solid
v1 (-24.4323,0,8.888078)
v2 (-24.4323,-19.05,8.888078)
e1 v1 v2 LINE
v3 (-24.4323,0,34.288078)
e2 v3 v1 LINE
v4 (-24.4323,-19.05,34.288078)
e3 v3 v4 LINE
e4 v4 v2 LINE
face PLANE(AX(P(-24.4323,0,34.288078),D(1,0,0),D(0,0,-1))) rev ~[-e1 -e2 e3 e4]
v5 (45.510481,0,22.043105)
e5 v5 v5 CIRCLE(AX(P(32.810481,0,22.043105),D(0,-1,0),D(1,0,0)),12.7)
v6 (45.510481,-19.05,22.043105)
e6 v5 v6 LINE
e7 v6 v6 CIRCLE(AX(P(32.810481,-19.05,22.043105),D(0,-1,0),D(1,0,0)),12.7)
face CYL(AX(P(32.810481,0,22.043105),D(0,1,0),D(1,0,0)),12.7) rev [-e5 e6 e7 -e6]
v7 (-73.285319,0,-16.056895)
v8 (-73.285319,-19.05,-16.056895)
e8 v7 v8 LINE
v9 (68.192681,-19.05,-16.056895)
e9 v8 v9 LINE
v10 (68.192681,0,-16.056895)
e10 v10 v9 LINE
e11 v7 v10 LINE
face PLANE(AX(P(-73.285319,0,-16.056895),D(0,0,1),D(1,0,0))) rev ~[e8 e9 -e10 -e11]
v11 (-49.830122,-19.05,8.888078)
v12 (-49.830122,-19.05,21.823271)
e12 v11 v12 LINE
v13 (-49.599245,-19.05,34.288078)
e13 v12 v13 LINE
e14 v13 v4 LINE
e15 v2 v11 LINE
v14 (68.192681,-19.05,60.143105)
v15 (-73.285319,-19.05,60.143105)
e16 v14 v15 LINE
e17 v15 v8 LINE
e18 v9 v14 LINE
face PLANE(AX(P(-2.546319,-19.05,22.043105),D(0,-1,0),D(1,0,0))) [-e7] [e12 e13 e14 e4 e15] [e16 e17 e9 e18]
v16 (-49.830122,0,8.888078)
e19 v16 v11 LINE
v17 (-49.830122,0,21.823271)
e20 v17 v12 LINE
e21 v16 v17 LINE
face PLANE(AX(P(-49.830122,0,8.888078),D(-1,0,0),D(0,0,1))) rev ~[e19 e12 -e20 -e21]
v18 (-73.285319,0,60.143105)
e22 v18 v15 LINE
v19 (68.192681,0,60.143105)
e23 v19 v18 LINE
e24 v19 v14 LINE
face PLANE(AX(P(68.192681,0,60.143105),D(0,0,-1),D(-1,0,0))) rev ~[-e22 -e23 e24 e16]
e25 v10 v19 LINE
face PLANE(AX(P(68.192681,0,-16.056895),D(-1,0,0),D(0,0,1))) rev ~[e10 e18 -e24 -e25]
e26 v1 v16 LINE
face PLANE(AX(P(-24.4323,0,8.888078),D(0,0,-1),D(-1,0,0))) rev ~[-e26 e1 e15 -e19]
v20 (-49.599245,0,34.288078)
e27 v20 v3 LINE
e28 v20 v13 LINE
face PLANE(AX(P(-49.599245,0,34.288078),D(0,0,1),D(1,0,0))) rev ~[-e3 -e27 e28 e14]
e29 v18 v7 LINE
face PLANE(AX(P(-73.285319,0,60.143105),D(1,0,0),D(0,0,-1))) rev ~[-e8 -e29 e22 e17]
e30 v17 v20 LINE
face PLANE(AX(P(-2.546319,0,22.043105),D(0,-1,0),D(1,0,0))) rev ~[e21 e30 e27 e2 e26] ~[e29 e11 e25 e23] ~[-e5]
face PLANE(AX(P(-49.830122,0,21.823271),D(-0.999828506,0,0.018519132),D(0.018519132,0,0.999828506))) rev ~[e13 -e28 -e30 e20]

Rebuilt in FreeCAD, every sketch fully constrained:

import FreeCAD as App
import Part
import Sketcher

V = App.Vector
Q = App.Units.Quantity

doc = App.newDocument("Part")
body = doc.addObject("PartDesign::Body", "Body")

sketch1 = doc.addObject("Sketcher::SketchObject", "Sketch")
body.addObject(sketch1)
sketch1.AttachmentSupport = (doc.XZ_Plane, [""])
sketch1.MapMode = "FlatFace"
sketch1.addGeometry([
    Part.LineSegment(V(68.192681, 60.143105, 0), V(-73.285319, 60.143105, 0)),
    Part.LineSegment(V(-73.285319, 60.143105, 0), V(-73.285319, -16.056895, 0)),
    Part.LineSegment(V(-73.285319, -16.056895, 0), V(68.192681, -16.056895, 0)),
    Part.LineSegment(V(68.192681, -16.056895, 0), V(68.192681, 60.143105, 0)),
    Part.LineSegment(V(-49.830122, 21.823271, 0), V(-49.599245, 34.288078, 0)),
    Part.LineSegment(V(-49.599245, 34.288078, 0), V(-24.4323, 34.288078, 0)),
    Part.LineSegment(V(-24.4323, 34.288078, 0), V(-24.4323, 8.888078, 0)),
    Part.LineSegment(V(-24.4323, 8.888078, 0), V(-49.830122, 8.888078, 0)),
    Part.LineSegment(V(-49.830122, 8.888078, 0), V(-49.830122, 21.823271, 0)),
    Part.Circle(V(32.810481, 22.043105, 0), V(0, 0, 1), 12.7),
], False)
sketch1.addConstraint([
    Sketcher.Constraint("Coincident", 0, 2, 1, 1),
    Sketcher.Constraint("Coincident", 1, 2, 2, 1),
    Sketcher.Constraint("Coincident", 2, 2, 3, 1),
    Sketcher.Constraint("Coincident", 3, 2, 0, 1),
    Sketcher.Constraint("Coincident", 4, 2, 5, 1),
    Sketcher.Constraint("Coincident", 5, 2, 6, 1),
    Sketcher.Constraint("Coincident", 6, 2, 7, 1),
    Sketcher.Constraint("Coincident", 7, 2, 8, 1),
    Sketcher.Constraint("Coincident", 8, 2, 4, 1),
    Sketcher.Constraint("Horizontal", 0),
    Sketcher.Constraint("Vertical", 1),
    Sketcher.Constraint("Horizontal", 2),
    Sketcher.Constraint("Vertical", 3),
    Sketcher.Constraint("Horizontal", 5),
    Sketcher.Constraint("Vertical", 6),
    Sketcher.Constraint("Horizontal", 7),
    Sketcher.Constraint("Vertical", 8),
    Sketcher.Constraint("Diameter", 9, Q("1 in")),
    Sketcher.Constraint("DistanceY", 1, 2, 1, 1, Q("3 in")),
    Sketcher.Constraint("DistanceY", 6, 2, 6, 1, Q("1 in")),
    Sketcher.Constraint("DistanceX", 0, 2, 0, 1, Q("5.57 in")),
    Sketcher.Constraint("DistanceY", 9, 3, 0, 2, Q("1.5 in")),
    Sketcher.Constraint("DistanceX", 0, 2, 9, 3, Q("4.177 in")),
    Sketcher.Constraint("DistanceX", 5, 2, -1, 1, 24.4323),
    Sketcher.Constraint("DistanceX", 5, 1, 5, 2, 25.166945),
    Sketcher.Constraint("DistanceX", 7, 2, 7, 1, 25.397822),
    Sketcher.Constraint("DistanceY", 8, 1, 8, 2, 12.935193),
    Sketcher.Constraint("DistanceX", -1, 1, 9, 3, 32.810481),
    Sketcher.Constraint("DistanceY", -1, 1, 8, 2, 21.823271),
    Sketcher.Constraint("DistanceY", -1, 1, 9, 3, 22.043105),
])
pad1 = doc.addObject("PartDesign::Pad", "Pad")
body.addObject(pad1)
pad1.Profile = sketch1
pad1.Length = Q("0.75 in")

doc.recompute()
